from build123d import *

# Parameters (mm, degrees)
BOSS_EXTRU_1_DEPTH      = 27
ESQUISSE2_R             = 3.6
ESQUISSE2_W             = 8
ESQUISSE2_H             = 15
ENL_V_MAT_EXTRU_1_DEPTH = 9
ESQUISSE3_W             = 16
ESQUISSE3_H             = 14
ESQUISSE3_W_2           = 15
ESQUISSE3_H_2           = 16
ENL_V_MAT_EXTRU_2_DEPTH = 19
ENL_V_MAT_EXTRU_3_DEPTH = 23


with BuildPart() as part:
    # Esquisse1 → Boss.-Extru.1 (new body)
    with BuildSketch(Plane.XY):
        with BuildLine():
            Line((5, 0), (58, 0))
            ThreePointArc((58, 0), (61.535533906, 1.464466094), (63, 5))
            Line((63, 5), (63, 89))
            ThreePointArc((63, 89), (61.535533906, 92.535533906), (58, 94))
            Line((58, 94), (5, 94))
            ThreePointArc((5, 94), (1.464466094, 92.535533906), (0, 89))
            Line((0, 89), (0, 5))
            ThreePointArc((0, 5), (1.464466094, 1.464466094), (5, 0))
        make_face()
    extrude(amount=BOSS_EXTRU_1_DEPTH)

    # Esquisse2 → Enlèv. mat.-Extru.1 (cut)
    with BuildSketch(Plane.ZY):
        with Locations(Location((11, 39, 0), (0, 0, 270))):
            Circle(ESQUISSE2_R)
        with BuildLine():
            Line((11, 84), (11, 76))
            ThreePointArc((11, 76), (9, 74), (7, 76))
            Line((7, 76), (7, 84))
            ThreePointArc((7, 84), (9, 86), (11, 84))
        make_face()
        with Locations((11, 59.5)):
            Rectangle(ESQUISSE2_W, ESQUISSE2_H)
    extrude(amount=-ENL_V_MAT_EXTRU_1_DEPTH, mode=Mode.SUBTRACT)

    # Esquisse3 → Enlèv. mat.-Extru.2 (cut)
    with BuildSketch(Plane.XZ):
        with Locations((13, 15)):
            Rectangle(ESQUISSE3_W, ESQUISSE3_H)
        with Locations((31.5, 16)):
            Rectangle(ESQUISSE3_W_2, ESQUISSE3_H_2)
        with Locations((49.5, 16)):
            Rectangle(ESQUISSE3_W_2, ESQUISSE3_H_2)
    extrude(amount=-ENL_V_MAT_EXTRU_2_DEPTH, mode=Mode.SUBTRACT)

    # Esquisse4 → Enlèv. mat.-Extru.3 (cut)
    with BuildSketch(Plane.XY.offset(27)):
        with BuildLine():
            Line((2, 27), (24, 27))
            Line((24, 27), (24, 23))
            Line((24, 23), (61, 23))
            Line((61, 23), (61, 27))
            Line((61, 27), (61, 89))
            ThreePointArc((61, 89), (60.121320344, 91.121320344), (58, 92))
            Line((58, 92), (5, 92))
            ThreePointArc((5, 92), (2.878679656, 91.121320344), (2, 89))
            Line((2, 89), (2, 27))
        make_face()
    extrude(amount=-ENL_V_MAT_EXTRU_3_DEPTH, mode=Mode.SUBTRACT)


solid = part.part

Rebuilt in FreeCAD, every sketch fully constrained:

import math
import FreeCAD as App
import Part
import Sketcher
Q = App.Units.Quantity

doc = App.newDocument("Part")
body = doc.addObject("PartDesign::Body", "Body")

# Sketch on XY plane
sketch1 = body.newObject("Sketcher::SketchObject", "Sketch")
sketch1.AttachmentSupport = (doc.getObject("XY_Plane"), [""])
sketch1.MapMode = "FlatFace"
sketch1.addGeometry([
    Part.LineSegment(App.Vector(5, 0, 0), App.Vector(58, 0, 0)),  # 0
    Part.ArcOfCircle(Part.Circle(App.Vector(58, 5, 0), App.Vector(0, 0, 1), 5), math.radians(-90), math.radians(0)),  # 1
    Part.LineSegment(App.Vector(63, 5, 0), App.Vector(63, 89, 0)),  # 2
    Part.ArcOfCircle(Part.Circle(App.Vector(58, 89, 0), App.Vector(0, 0, 1), 5), math.radians(0), math.radians(90)),  # 3
    Part.LineSegment(App.Vector(58, 94, 0), App.Vector(5, 94, 0)),  # 4
    Part.ArcOfCircle(Part.Circle(App.Vector(5, 89, 0), App.Vector(0, 0, 1), 5), math.radians(90), math.radians(180)),  # 5
    Part.LineSegment(App.Vector(0, 89, 0), App.Vector(0, 5, 0)),  # 6
    Part.ArcOfCircle(Part.Circle(App.Vector(5, 5, 0), App.Vector(0, 0, 1), 5), math.radians(180), math.radians(270)),  # 7
], False)
sketch1.addConstraint([
    Sketcher.Constraint("Tangent", 0, 2, 1, 1),
    Sketcher.Constraint("Tangent", 1, 2, 2, 1),
    Sketcher.Constraint("Tangent", 2, 2, 3, 1),
    Sketcher.Constraint("Tangent", 3, 2, 4, 1),
    Sketcher.Constraint("Tangent", 4, 2, 5, 1),
    Sketcher.Constraint("Tangent", 5, 2, 6, 1),
    Sketcher.Constraint("Tangent", 6, 2, 7, 1),
    Sketcher.Constraint("Tangent", 7, 2, 0, 1),
    Sketcher.Constraint("Horizontal", 0),
    Sketcher.Constraint("Vertical", 2),
    Sketcher.Constraint("Horizontal", 4),
    Sketcher.Constraint("Vertical", 6),
    Sketcher.Constraint("Equal", 1, 3),
    Sketcher.Constraint("Equal", 3, 5),
    Sketcher.Constraint("Equal", 5, 7),
    Sketcher.Constraint("PointOnObject", 0, 2, -1),
    Sketcher.Constraint("PointOnObject", 5, 2, -2),
    Sketcher.Constraint("Radius", 1, Q("5 mm")),
    Sketcher.Constraint("DistanceX", 0, 1, 0, 2, Q("53 mm")),
    Sketcher.Constraint("DistanceY", 2, 1, 2, 2, Q("84 mm")),
])
pad1 = body.newObject("PartDesign::Pad", "Pad")
pad1.Profile = sketch1
pad1.Length = 27

# Sketch on YZ plane
sketch2 = body.newObject("Sketcher::SketchObject", "Sketch001")
sketch2.AttachmentSupport = (doc.getObject("YZ_Plane"), [""])
sketch2.MapMode = "FlatFace"
sketch2.addGeometry([
    Part.Circle(App.Vector(39, 11, 0), App.Vector(0, 0, 1), 3.6),  # 0
    Part.LineSegment(App.Vector(76, 11, 0), App.Vector(84, 11, 0)),  # 1
    Part.ArcOfCircle(Part.Circle(App.Vector(84, 9, 0), App.Vector(0, 0, 1), 2), math.radians(-90), math.radians(90)),  # 2
    Part.LineSegment(App.Vector(84, 7, 0), App.Vector(76, 7, 0)),  # 3
    Part.ArcOfCircle(Part.Circle(App.Vector(76, 9, 0), App.Vector(0, 0, 1), 2), math.radians(90), math.radians(270)),  # 4
    Part.LineSegment(App.Vector(67, 7, 0), App.Vector(52, 7, 0)),  # 5
    Part.LineSegment(App.Vector(52, 7, 0), App.Vector(52, 15, 0)),  # 6
    Part.LineSegment(App.Vector(52, 15, 0), App.Vector(67, 15, 0)),  # 7
    Part.LineSegment(App.Vector(67, 15, 0), App.Vector(67, 7, 0)),  # 8
], False)
sketch2.addConstraint([
    Sketcher.Constraint("Tangent", 1, 2, 2, 2),
    Sketcher.Constraint("Tangent", 2, 1, 3, 1),
    Sketcher.Constraint("Tangent", 3, 2, 4, 2),
    Sketcher.Constraint("Tangent", 4, 1, 1, 1),
    Sketcher.Constraint("Coincident", 5, 2, 6, 1),
    Sketcher.Constraint("Coincident", 6, 2, 7, 1),
    Sketcher.Constraint("Coincident", 7, 2, 8, 1),
    Sketcher.Constraint("Coincident", 8, 2, 5, 1),
    Sketcher.Constraint("Horizontal", 1),
    Sketcher.Constraint("Horizontal", 3),
    Sketcher.Constraint("Horizontal", 5),
    Sketcher.Constraint("Vertical", 6),
    Sketcher.Constraint("Horizontal", 7),
    Sketcher.Constraint("Vertical", 8),
    Sketcher.Constraint("Horizontal", 0, 3, 1, 2),
    Sketcher.Constraint("Horizontal", 3, 2, 5, 2),
    Sketcher.Constraint("Equal", 3, 6),
    Sketcher.Constraint("Radius", 2, Q("2 mm")),
    Sketcher.Constraint("Diameter", 0, Q("7.2 mm")),
    Sketcher.Constraint("DistanceX", 1, 1, 1, 2, Q("8 mm")),
    Sketcher.Constraint("DistanceX", 5, 2, 5, 1, Q("15 mm")),
    Sketcher.Constraint("DistanceX", -1, 1, 0, 3, Q("39 mm")),
    Sketcher.Constraint("DistanceY", -1, 1, 0, 3, Q("11 mm")),
    Sketcher.Constraint("DistanceX", -1, 1, 2, 3, Q("84 mm")),
    Sketcher.Constraint("DistanceX", -1, 1, 5, 2, Q("52 mm")),
])
pocket1 = body.newObject("PartDesign::Pocket", "Pocket")
pocket1.Profile = sketch2
pocket1.Length = 9
pocket1.Reversed = True

# Sketch on XZ plane
sketch3 = body.newObject("Sketcher::SketchObject", "Sketch002")
sketch3.AttachmentSupport = (doc.getObject("XZ_Plane"), [""])
sketch3.MapMode = "FlatFace"
sketch3.addGeometry([
    Part.LineSegment(App.Vector(5, 22, 0), App.Vector(5, 8, 0)),  # 0
    Part.LineSegment(App.Vector(5, 8, 0), App.Vector(21, 8, 0)),  # 1
    Part.LineSegment(App.Vector(21, 8, 0), App.Vector(21, 22, 0)),  # 2
    Part.LineSegment(App.Vector(21, 22, 0), App.Vector(5, 22, 0)),  # 3
    Part.LineSegment(App.Vector(24, 24, 0), App.Vector(24, 8, 0)),  # 4
    Part.LineSegment(App.Vector(24, 8, 0), App.Vector(39, 8, 0)),  # 5
    Part.LineSegment(App.Vector(39, 8, 0), App.Vector(39, 24, 0)),  # 6
    Part.LineSegment(App.Vector(39, 24, 0), App.Vector(24, 24, 0)),  # 7
    Part.LineSegment(App.Vector(42, 24, 0), App.Vector(42, 8, 0)),  # 8
    Part.LineSegment(App.Vector(42, 8, 0), App.Vector(57, 8, 0)),  # 9
    Part.LineSegment(App.Vector(57, 8, 0), App.Vector(57, 24, 0)),  # 10
    Part.LineSegment(App.Vector(57, 24, 0), App.Vector(42, 24, 0)),  # 11
], False)
sketch3.addConstraint([
    Sketcher.Constraint("Coincident", 0, 2, 1, 1),
    Sketcher.Constraint("Coincident", 1, 2, 2, 1),
    Sketcher.Constraint("Coincident", 2, 2, 3, 1),
    Sketcher.Constraint("Coincident", 3, 2, 0, 1),
    Sketcher.Constraint("Coincident", 4, 2, 5, 1),
    Sketcher.Constraint("Coincident", 5, 2, 6, 1),
    Sketcher.Constraint("Coincident", 6, 2, 7, 1),
    Sketcher.Constraint("Coincident", 7, 2, 4, 1),
    Sketcher.Constraint("Coincident", 8, 2, 9, 1),
    Sketcher.Constraint("Coincident", 9, 2, 10, 1),
    Sketcher.Constraint("Coincident", 10, 2, 11, 1),
    Sketcher.Constraint("Coincident", 11, 2, 8, 1),
    Sketcher.Constraint("Vertical", 0),
    Sketcher.Constraint("Horizontal", 1),
    Sketcher.Constraint("Vertical", 2),
    Sketcher.Constraint("Horizontal", 3),
    Sketcher.Constraint("Vertical", 4),
    Sketcher.Constraint("Horizontal", 5),
    Sketcher.Constraint("Vertical", 6),
    Sketcher.Constraint("Horizontal", 7),
    Sketcher.Constraint("Vertical", 8),
    Sketcher.Constraint("Horizontal", 9),
    Sketcher.Constraint("Vertical", 10),
    Sketcher.Constraint("Horizontal", 11),
    Sketcher.Constraint("Horizontal", 1, 2, 4, 2),
    Sketcher.Constraint("Horizontal", 5, 2, 8, 2),
    Sketcher.Constraint("Horizontal", 7, 2, 10, 2),
    Sketcher.Constraint("Equal", 7, 9),
    Sketcher.Constraint("Equal", 3, 4),
    Sketcher.Constraint("DistanceX", 1, 1, 1, 2, Q("16 mm")),
    Sketcher.Constraint("DistanceX", 5, 1, 5, 2, Q("15 mm")),
    Sketcher.Constraint("DistanceY", 0, 2, 0, 1, Q("14 mm")),
    Sketcher.Constraint("DistanceX", -1, 1, 0, 2, Q("5 mm")),
    Sketcher.Constraint("DistanceY", -1, 1, 0, 2, Q("8 mm")),
    Sketcher.Constraint("DistanceX", -1, 1, 4, 2, Q("24 mm")),
    Sketcher.Constraint("DistanceX", -1, 1, 8, 2, Q("42 mm")),
])
pocket2 = body.newObject("PartDesign::Pocket", "Pocket001")
pocket2.Profile = sketch3
pocket2.Length = 19

# Sketch on XY plane
sketch4 = body.newObject("Sketcher::SketchObject", "Sketch003")
sketch4.AttachmentSupport = (doc.getObject("XY_Plane"), [""])
sketch4.MapMode = "FlatFace"
sketch4.AttachmentOffset = App.Placement(App.Vector(0, 0, 27), App.Rotation())
sketch4.addGeometry([
    Part.LineSegment(App.Vector(2, 27, 0), App.Vector(24, 27, 0)),  # 0
    Part.LineSegment(App.Vector(24, 27, 0), App.Vector(24, 23, 0)),  # 1
    Part.LineSegment(App.Vector(24, 23, 0), App.Vector(61, 23, 0)),  # 2
    Part.LineSegment(App.Vector(61, 23, 0), App.Vector(61, 89, 0)),  # 3
    Part.ArcOfCircle(Part.Circle(App.Vector(58, 89, 0), App.Vector(0, 0, 1), 3), math.radians(0), math.radians(90)),  # 4
    Part.LineSegment(App.Vector(58, 92, 0), App.Vector(5, 92, 0)),  # 5
    Part.ArcOfCircle(Part.Circle(App.Vector(5, 89, 0), App.Vector(0, 0, 1), 3), math.radians(90), math.radians(180)),  # 6
    Part.LineSegment(App.Vector(2, 89, 0), App.Vector(2, 27, 0)),  # 7
], False)
sketch4.addConstraint([
    Sketcher.Constraint("Coincident", 0, 2, 1, 1),
    Sketcher.Constraint("Coincident", 1, 2, 2, 1),
    Sketcher.Constraint("Coincident", 2, 2, 3, 1),
    Sketcher.Constraint("Tangent", 3, 2, 4, 1),
    Sketcher.Constraint("Tangent", 4, 2, 5, 1),
    Sketcher.Constraint("Tangent", 5, 2, 6, 1),
    Sketcher.Constraint("Tangent", 6, 2, 7, 1),
    Sketcher.Constraint("Coincident", 7, 2, 0, 1),
    Sketcher.Constraint("Horizontal", 0),
    Sketcher.Constraint("Vertical", 1),
    Sketcher.Constraint("Horizontal", 2),
    Sketcher.Constraint("Vertical", 3),
    Sketcher.Constraint("Horizontal", 5),
    Sketcher.Constraint("Vertical", 7),
    Sketcher.Constraint("Equal", 4, 6),
    Sketcher.Constraint("Radius", 4, Q("3 mm")),
    Sketcher.Constraint("DistanceX", 0, 1, 0, 2, Q("22 mm")),
    Sketcher.Constraint("DistanceX", 2, 1, 2, 2, Q("37 mm")),
    Sketcher.Constraint("DistanceY", 1, 2, 1, 1, Q("4 mm")),
    Sketcher.Constraint("DistanceY", 3, 1, 3, 2, Q("66 mm")),
    Sketcher.Constraint("DistanceX", -1, 1, 4, 3, Q("58 mm")),
    Sketcher.Constraint("DistanceY", -1, 1, 4, 3, Q("89 mm")),
])
pocket3 = body.newObject("PartDesign::Pocket", "Pocket002")
pocket3.Profile = sketch4
pocket3.Length = 23

doc.recompute()
